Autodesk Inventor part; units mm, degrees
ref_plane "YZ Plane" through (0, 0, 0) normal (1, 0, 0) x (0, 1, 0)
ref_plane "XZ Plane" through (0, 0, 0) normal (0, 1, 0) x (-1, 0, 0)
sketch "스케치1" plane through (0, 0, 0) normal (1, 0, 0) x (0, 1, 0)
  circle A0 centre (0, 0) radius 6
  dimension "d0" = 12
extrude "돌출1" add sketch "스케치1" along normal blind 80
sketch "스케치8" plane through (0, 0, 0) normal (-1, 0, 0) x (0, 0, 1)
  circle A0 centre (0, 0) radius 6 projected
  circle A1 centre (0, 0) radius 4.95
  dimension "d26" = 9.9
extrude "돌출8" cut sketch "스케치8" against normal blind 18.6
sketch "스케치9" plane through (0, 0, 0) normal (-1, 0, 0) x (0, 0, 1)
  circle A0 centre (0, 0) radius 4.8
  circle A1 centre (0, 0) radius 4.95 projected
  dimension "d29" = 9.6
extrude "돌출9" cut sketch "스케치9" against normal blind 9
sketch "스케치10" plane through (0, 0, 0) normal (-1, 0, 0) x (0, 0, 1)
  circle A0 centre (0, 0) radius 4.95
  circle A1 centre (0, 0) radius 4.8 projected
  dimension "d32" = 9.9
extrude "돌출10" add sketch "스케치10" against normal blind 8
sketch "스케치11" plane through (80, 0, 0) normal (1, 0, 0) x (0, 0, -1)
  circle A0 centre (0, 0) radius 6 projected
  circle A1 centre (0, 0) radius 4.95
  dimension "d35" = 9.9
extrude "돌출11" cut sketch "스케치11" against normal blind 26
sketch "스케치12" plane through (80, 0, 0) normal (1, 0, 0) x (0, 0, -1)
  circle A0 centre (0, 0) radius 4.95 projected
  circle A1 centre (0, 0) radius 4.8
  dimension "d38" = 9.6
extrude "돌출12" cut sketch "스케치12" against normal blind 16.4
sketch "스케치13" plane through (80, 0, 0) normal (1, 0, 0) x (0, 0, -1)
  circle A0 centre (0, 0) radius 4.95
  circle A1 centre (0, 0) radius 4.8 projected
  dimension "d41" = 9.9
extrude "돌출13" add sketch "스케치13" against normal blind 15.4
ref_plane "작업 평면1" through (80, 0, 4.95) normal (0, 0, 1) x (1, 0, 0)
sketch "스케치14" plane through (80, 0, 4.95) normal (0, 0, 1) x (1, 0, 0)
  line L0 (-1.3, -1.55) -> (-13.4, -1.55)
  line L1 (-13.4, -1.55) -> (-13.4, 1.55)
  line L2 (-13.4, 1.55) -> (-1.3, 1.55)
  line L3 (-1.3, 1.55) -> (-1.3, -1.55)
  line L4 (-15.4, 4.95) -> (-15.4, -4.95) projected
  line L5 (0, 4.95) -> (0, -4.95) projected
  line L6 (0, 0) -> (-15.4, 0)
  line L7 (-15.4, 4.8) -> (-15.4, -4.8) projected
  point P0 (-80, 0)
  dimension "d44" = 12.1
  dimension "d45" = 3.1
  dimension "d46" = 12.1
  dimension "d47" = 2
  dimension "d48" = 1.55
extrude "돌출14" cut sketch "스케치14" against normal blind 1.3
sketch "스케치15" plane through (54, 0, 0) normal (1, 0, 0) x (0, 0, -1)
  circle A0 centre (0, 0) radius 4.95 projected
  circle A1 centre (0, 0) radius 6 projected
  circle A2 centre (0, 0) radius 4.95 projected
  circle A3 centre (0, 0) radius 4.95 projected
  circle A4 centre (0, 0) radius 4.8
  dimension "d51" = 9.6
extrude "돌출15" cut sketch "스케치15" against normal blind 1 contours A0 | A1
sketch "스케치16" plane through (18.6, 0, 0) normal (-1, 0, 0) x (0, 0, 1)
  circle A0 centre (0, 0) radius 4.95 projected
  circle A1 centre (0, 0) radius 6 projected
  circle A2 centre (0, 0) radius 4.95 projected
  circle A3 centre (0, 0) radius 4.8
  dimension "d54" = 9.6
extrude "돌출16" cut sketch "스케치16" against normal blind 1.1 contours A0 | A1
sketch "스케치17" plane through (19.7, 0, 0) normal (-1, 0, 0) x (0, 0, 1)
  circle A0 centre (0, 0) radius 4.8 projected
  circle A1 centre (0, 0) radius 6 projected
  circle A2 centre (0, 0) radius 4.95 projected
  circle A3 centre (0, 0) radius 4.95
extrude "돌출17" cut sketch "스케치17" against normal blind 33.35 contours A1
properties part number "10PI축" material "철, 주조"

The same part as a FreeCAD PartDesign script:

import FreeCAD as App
import Part
import Sketcher
from FreeCAD import Vector
Q = App.Units.Quantity


def add_polygon(sketch, points):
    """Adds a closed chain of lines whose ends are joined by coincident constraints."""
    first, n = sketch.GeometryCount, len(points)
    for a, b in zip(points, points[1:] + points[:1]):
        sketch.addGeometry(Part.LineSegment(App.Vector(*a, 0), App.Vector(*b, 0)), False)
    for i in range(n):
        sketch.addConstraint(Sketcher.Constraint("Coincident", first + i, 2, first + (i + 1) % n, 1))

doc = App.newDocument("Part")
body = doc.addObject("PartDesign::Body", "Body")

sketch1 = body.newObject("Sketcher::SketchObject", "Sketch")
sketch1.AttachmentSupport = (doc.getObject("YZ_Plane"), [""])
sketch1.MapMode = "FlatFace"
sketch1.addGeometry(Part.Circle(Vector(0, 0, 0), Vector(0, 0, 1), 6), False)
sketch1.addConstraint([
    Sketcher.Constraint("Coincident", 0, 3, -1, 1),
    Sketcher.Constraint("Diameter", 0, Q("12 mm")),
])
pad1 = body.newObject("PartDesign::Pad", "Pad")
pad1.Profile = sketch1
pad1.Length = 80

sketch2 = body.newObject("Sketcher::SketchObject", "Sketch001")
sketch2.AttachmentSupport = (doc.getObject("YZ_Plane"), [""])
sketch2.MapMode = "FlatFace"
sketch2.addGeometry([
    Part.Circle(Vector(0, 0, 0), Vector(0, 0, 1), 6),
    Part.Circle(Vector(0, 0, 0), Vector(0, 0, 1), 4.95),
], False)
sketch2.addConstraint([
    Sketcher.Constraint("Coincident", 0, 3, -1, 1),
    Sketcher.Constraint("Coincident", 1, 3, -1, 1),
    Sketcher.Constraint("Diameter", 1, Q("9.9 mm")),
    Sketcher.Constraint("Diameter", 0, Q("12 mm")),
])
pocket1 = body.newObject("PartDesign::Pocket", "Pocket")
pocket1.Profile = sketch2
pocket1.Length = 18.6
pocket1.Reversed = True

sketch3 = body.newObject("Sketcher::SketchObject", "Sketch002")
sketch3.AttachmentSupport = (doc.getObject("YZ_Plane"), [""])
sketch3.MapMode = "FlatFace"
sketch3.addGeometry([
    Part.Circle(Vector(0, 0, 0), Vector(0, 0, 1), 4.95),
    Part.Circle(Vector(0, 0, 0), Vector(0, 0, 1), 4.8),
], False)
sketch3.addConstraint([
    Sketcher.Constraint("Coincident", 0, 3, -1, 1),
    Sketcher.Constraint("Coincident", 1, 3, -1, 1),
    Sketcher.Constraint("Diameter", 1, Q("9.6 mm")),
    Sketcher.Constraint("Diameter", 0, Q("9.9 mm")),
])
pocket2 = body.newObject("PartDesign::Pocket", "Pocket001")
pocket2.Profile = sketch3
pocket2.Length = 9
pocket2.Reversed = True

sketch4 = body.newObject("Sketcher::SketchObject", "Sketch003")
sketch4.AttachmentSupport = (doc.getObject("YZ_Plane"), [""])
sketch4.MapMode = "FlatFace"
sketch4.addGeometry([
    Part.Circle(Vector(0, 0, 0), Vector(0, 0, 1), 4.95),
    Part.Circle(Vector(0, 0, 0), Vector(0, 0, 1), 4.8),
], False)
sketch4.addConstraint([
    Sketcher.Constraint("Coincident", 0, 3, -1, 1),
    Sketcher.Constraint("Coincident", 1, 3, -1, 1),
    Sketcher.Constraint("Diameter", 0, Q("9.9 mm")),
    Sketcher.Constraint("Diameter", 1, Q("9.6 mm")),
])
pad2 = body.newObject("PartDesign::Pad", "Pad001")
pad2.Profile = sketch4
pad2.Length = 8

sketch5 = body.newObject("Sketcher::SketchObject", "Sketch004")
sketch5.AttachmentSupport = (doc.getObject("YZ_Plane"), [""])
sketch5.MapMode = "FlatFace"
sketch5.AttachmentOffset = App.Placement(Vector(0, 0, 80), App.Rotation())
sketch5.addGeometry([
    Part.Circle(Vector(0, 0, 0), Vector(0, 0, 1), 6),
    Part.Circle(Vector(0, 0, 0), Vector(0, 0, 1), 4.95),
], False)
sketch5.addConstraint([
    Sketcher.Constraint("Coincident", 0, 3, -1, 1),
    Sketcher.Constraint("Coincident", 1, 3, -1, 1),
    Sketcher.Constraint("Diameter", 1, Q("9.9 mm")),
    Sketcher.Constraint("Diameter", 0, Q("12 mm")),
])
pocket3 = body.newObject("PartDesign::Pocket", "Pocket002")
pocket3.Profile = sketch5
pocket3.Length = 26

sketch6 = body.newObject("Sketcher::SketchObject", "Sketch005")
sketch6.AttachmentSupport = (doc.getObject("YZ_Plane"), [""])
sketch6.MapMode = "FlatFace"
sketch6.AttachmentOffset = App.Placement(Vector(0, 0, 80), App.Rotation())
sketch6.addGeometry([
    Part.Circle(Vector(0, 0, 0), Vector(0, 0, 1), 4.95),
    Part.Circle(Vector(0, 0, 0), Vector(0, 0, 1), 4.8),
], False)
sketch6.addConstraint([
    Sketcher.Constraint("Coincident", 0, 3, -1, 1),
    Sketcher.Constraint("Coincident", 1, 3, -1, 1),
    Sketcher.Constraint("Diameter", 1, Q("9.6 mm")),
    Sketcher.Constraint("Diameter", 0, Q("9.9 mm")),
])
pocket4 = body.newObject("PartDesign::Pocket", "Pocket003")
pocket4.Profile = sketch6
pocket4.Length = 16.4

sketch7 = body.newObject("Sketcher::SketchObject", "Sketch006")
sketch7.AttachmentSupport = (doc.getObject("YZ_Plane"), [""])
sketch7.MapMode = "FlatFace"
sketch7.AttachmentOffset = App.Placement(Vector(0, 0, 80), App.Rotation())
sketch7.addGeometry([
    Part.Circle(Vector(0, 0, 0), Vector(0, 0, 1), 4.95),
    Part.Circle(Vector(0, 0, 0), Vector(0, 0, 1), 4.8),
], False)
sketch7.addConstraint([
    Sketcher.Constraint("Coincident", 0, 3, -1, 1),
    Sketcher.Constraint("Coincident", 1, 3, -1, 1),
    Sketcher.Constraint("Diameter", 0, Q("9.9 mm")),
    Sketcher.Constraint("Diameter", 1, Q("9.6 mm")),
])
pad3 = body.newObject("PartDesign::Pad", "Pad002")
pad3.Profile = sketch7
pad3.Length = 15.4
pad3.Reversed = True

sketch8 = body.newObject("Sketcher::SketchObject", "Sketch007")
sketch8.AttachmentSupport = (doc.getObject("XY_Plane"), [""])
sketch8.MapMode = "FlatFace"
sketch8.AttachmentOffset = App.Placement(Vector(0, 0, 4.95), App.Rotation())
add_polygon(sketch8, [(66.6, -1.55), (78.7, -1.55), (78.7, 1.55), (66.6, 1.55)])
sketch8.addConstraint([
    Sketcher.Constraint("Horizontal", 0),
    Sketcher.Constraint("Vertical", 1),
    Sketcher.Constraint("Horizontal", 2),
    Sketcher.Constraint("Vertical", 3),
    Sketcher.Constraint("DistanceX", 0, 1, 0, 2, Q("12.1 mm")),
    Sketcher.Constraint("DistanceY", 1, 1, 1, 2, Q("3.1 mm")),
    Sketcher.Constraint("DistanceY", 0, 2, -1, 1, Q("1.55 mm")),
    Sketcher.Constraint("DistanceX", -1, 1, 0, 2, Q("78.7 mm")),
])
pocket5 = body.newObject("PartDesign::Pocket", "Pocket004")
pocket5.Profile = sketch8
pocket5.Length = 1.3

sketch9 = body.newObject("Sketcher::SketchObject", "Sketch008")
sketch9.AttachmentSupport = (doc.getObject("YZ_Plane"), [""])
sketch9.MapMode = "FlatFace"
sketch9.AttachmentOffset = App.Placement(Vector(0, 0, 54), App.Rotation())
sketch9.addGeometry([
    Part.Circle(Vector(0, 0, 0), Vector(0, 0, 1), 6),
    Part.Circle(Vector(0, 0, 0), Vector(0, 0, 1), 4.8),
], False)
sketch9.addConstraint([
    Sketcher.Constraint("Coincident", 0, 3, -1, 1),
    Sketcher.Constraint("Coincident", 1, 3, -1, 1),
    Sketcher.Constraint("Diameter", 1, Q("9.6 mm")),
    Sketcher.Constraint("Diameter", 0, Q("12 mm")),
])
pocket6 = body.newObject("PartDesign::Pocket", "Pocket005")
pocket6.Profile = sketch9
pocket6.Length = 1

sketch10 = body.newObject("Sketcher::SketchObject", "Sketch009")
sketch10.AttachmentSupport = (doc.getObject("YZ_Plane"), [""])
sketch10.MapMode = "FlatFace"
sketch10.AttachmentOffset = App.Placement(Vector(0, 0, 18.6), App.Rotation())
sketch10.addGeometry([
    Part.Circle(Vector(0, 0, 0), Vector(0, 0, 1), 6),
    Part.Circle(Vector(0, 0, 0), Vector(0, 0, 1), 4.8),
], False)
sketch10.addConstraint([
    Sketcher.Constraint("Coincident", 0, 3, -1, 1),
    Sketcher.Constraint("Coincident", 1, 3, -1, 1),
    Sketcher.Constraint("Diameter", 1, Q("9.6 mm")),
    Sketcher.Constraint("Diameter", 0, Q("12 mm")),
])
pocket7 = body.newObject("PartDesign::Pocket", "Pocket006")
pocket7.Profile = sketch10
pocket7.Length = 1.1
pocket7.Reversed = True

sketch11 = body.newObject("Sketcher::SketchObject", "Sketch010")
sketch11.AttachmentSupport = (doc.getObject("YZ_Plane"), [""])
sketch11.MapMode = "FlatFace"
sketch11.AttachmentOffset = App.Placement(Vector(0, 0, 19.7), App.Rotation())
sketch11.addGeometry([
    Part.Circle(Vector(0, 0, 0), Vector(0, 0, 1), 6),
    Part.Circle(Vector(0, 0, 0), Vector(0, 0, 1), 4.95),
], False)
sketch11.addConstraint([
    Sketcher.Constraint("Coincident", 0, 3, -1, 1),
    Sketcher.Constraint("Coincident", 1, 3, -1, 1),
    Sketcher.Constraint("Diameter", 0, Q("12 mm")),
    Sketcher.Constraint("Diameter", 1, Q("9.9 mm")),
])
pocket8 = body.newObject("PartDesign::Pocket", "Pocket007")
pocket8.Profile = sketch11
pocket8.Length = 33.35
pocket8.Reversed = True

doc.recompute()
